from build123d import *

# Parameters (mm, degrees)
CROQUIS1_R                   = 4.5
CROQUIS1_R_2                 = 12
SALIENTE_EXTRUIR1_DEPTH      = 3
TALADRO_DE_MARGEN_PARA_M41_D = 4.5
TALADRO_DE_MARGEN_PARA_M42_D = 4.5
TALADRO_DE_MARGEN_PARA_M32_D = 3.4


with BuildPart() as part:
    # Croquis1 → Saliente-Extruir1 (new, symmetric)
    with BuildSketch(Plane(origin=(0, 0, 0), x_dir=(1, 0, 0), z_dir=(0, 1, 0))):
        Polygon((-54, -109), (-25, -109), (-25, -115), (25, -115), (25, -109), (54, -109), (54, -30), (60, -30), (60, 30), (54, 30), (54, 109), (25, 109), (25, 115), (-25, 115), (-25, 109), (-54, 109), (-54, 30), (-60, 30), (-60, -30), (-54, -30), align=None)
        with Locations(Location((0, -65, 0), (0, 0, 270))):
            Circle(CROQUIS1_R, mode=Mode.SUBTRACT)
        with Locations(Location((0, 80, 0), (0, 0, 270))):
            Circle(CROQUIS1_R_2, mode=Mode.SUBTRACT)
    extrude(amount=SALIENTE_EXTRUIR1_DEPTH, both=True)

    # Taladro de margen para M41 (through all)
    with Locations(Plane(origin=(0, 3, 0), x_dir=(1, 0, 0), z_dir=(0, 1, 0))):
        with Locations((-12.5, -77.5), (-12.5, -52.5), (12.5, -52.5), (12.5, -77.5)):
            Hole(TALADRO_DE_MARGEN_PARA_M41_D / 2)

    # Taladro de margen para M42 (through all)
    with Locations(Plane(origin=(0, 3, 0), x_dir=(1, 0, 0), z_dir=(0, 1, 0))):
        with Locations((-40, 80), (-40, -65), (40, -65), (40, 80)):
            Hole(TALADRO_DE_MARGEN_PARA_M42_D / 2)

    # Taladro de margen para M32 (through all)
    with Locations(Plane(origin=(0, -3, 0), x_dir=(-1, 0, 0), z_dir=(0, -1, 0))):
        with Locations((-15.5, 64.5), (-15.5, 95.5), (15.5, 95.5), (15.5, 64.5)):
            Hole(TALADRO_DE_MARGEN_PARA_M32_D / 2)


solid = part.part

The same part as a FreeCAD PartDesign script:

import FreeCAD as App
import Part
import Sketcher
from FreeCAD import Vector


def add_polygon(sketch, points):
    """Adds a closed chain of lines whose ends are joined by coincident constraints."""
    first, n = sketch.GeometryCount, len(points)
    for a, b in zip(points, points[1:] + points[:1]):
        sketch.addGeometry(Part.LineSegment(App.Vector(*a, 0), App.Vector(*b, 0)), False)
    for i in range(n):
        sketch.addConstraint(Sketcher.Constraint("Coincident", first + i, 2, first + (i + 1) % n, 1))

doc = App.newDocument("Part")
body = doc.addObject("PartDesign::Body", "Body")

# Sketch on XZ plane
sketch1 = body.newObject("Sketcher::SketchObject", "Sketch")
sketch1.AttachmentSupport = (doc.getObject("XZ_Plane"), [""])
sketch1.MapMode = "FlatFace"
add_polygon(sketch1, [(-54, 109), (-25, 109), (-25, 115), (25, 115), (25, 109), (54, 109), (54, 30), (60, 30), (60, -30), (54, -30), (54, -109), (25, -109), (25, -115), (-25, -115), (-25, -109), (-54, -109), (-54, -30), (-60, -30), (-60, 30), (-54, 30)])  # lines 0-19
sketch1.addGeometry(Part.Circle(Vector(0, 65, 0), Vector(0, 0, 1), 4.5), False)  # 20
sketch1.addGeometry(Part.Circle(Vector(0, -80, 0), Vector(0, 0, 1), 12), False)  # 21
sketch1.addConstraint([
    Sketcher.Constraint("Horizontal", 0),
    Sketcher.Constraint("Vertical", 1),
    Sketcher.Constraint("Horizontal", 2),
    Sketcher.Constraint("Vertical", 3),
    Sketcher.Constraint("Horizontal", 4),
    Sketcher.Constraint("Vertical", 5),
    Sketcher.Constraint("Horizontal", 6),
    Sketcher.Constraint("Vertical", 7),
    Sketcher.Constraint("Horizontal", 8),
    Sketcher.Constraint("Vertical", 9),
    Sketcher.Constraint("Horizontal", 10),
    Sketcher.Constraint("Vertical", 11),
    Sketcher.Constraint("Horizontal", 12),
    Sketcher.Constraint("Vertical", 13),
    Sketcher.Constraint("Horizontal", 14),
    Sketcher.Constraint("Vertical", 15),
    Sketcher.Constraint("Horizontal", 16),
    Sketcher.Constraint("Vertical", 17),
    Sketcher.Constraint("Horizontal", 18),
    Sketcher.Constraint("Vertical", 19),
    Sketcher.Constraint("Symmetric", 0, 2, 10, 2, -1, 1),
    Sketcher.Constraint("Symmetric", 2, 2, 12, 2, -1, 1),
    Sketcher.Constraint("Symmetric", 4, 2, 14, 2, -1, 1),
    Sketcher.Constraint("Symmetric", 6, 2, 16, 2, -1, 1),
    Sketcher.Constraint("Symmetric", 8, 2, 18, 2, -1, 1),
    Sketcher.Constraint("Symmetric", 0, 2, 3, 2, -2),
    Sketcher.Constraint("Symmetric", 8, 2, 15, 2, -2),
    Sketcher.Constraint("PointOnObject", 20, 3, -2),
    Sketcher.Constraint("PointOnObject", 21, 3, -2),
    Sketcher.Constraint("Equal", 18, 1),
    Sketcher.Constraint("Diameter", 20, 9.0),
    Sketcher.Constraint("Diameter", 21, 24.0),
    Sketcher.Constraint("DistanceX", 0, 1, 0, 2, 29.0),
    Sketcher.Constraint("DistanceX", 2, 1, 2, 2, 50.0),
    Sketcher.Constraint("DistanceX", 6, 1, 6, 2, 6.0),
    Sketcher.Constraint("DistanceY", 5, 2, 5, 1, 79.0),
    Sketcher.Constraint("DistanceY", 7, 2, 7, 1, 60.0),
    Sketcher.Constraint("DistanceY", -1, 1, 20, 3, 65.0),
    Sketcher.Constraint("DistanceY", 21, 3, -1, 1, 80.0),
])
pad1 = body.newObject("PartDesign::Pad", "Pad")
pad1.Profile = sketch1
pad1.Length = 6
pad1.Midplane = True

# Sketch on XZ plane
sketch2 = body.newObject("Sketcher::SketchObject", "Sketch001")
sketch2.AttachmentSupport = (doc.getObject("XZ_Plane"), [""])
sketch2.MapMode = "FlatFace"
sketch2.AttachmentOffset = App.Placement(Vector(0, 0, -3), App.Rotation())
sketch2.addGeometry([
    Part.Circle(Vector(-12.5, 77.5, 0), Vector(0, 0, 1), 2.25),
    Part.Circle(Vector(-12.5, 52.5, 0), Vector(0, 0, 1), 2.25),
    Part.Circle(Vector(12.5, 52.5, 0), Vector(0, 0, 1), 2.25),
    Part.Circle(Vector(12.5, 77.5, 0), Vector(0, 0, 1), 2.25),
], False)
sketch2.addConstraint([
    Sketcher.Constraint("Equal", 0, 1),
    Sketcher.Constraint("Equal", 1, 2),
    Sketcher.Constraint("Equal", 2, 3),
    Sketcher.Constraint("Symmetric", 1, 3, 2, 3, -2),
    Sketcher.Constraint("Symmetric", 0, 3, 3, 3, -2),
    Sketcher.Constraint("Vertical", 0, 3, 1, 3),
    Sketcher.Constraint("Diameter", 0, 4.5),
    Sketcher.Constraint("DistanceY", 1, 3, 0, 3, 25.0),
    Sketcher.Constraint("DistanceX", 1, 3, 2, 3, 25.0),
    Sketcher.Constraint("DistanceY", -1, 1, 0, 3, 77.5),
])
doc.recompute()
hole = body.newObject("PartDesign::Hole", "Hole")
hole.Profile = sketch2
hole.ThreadType = "None"
hole.Diameter = 4.5
hole.DepthType = "ThroughAll"
hole.Reversed = True

# Sketch on XZ plane
sketch3 = body.newObject("Sketcher::SketchObject", "Sketch002")
sketch3.AttachmentSupport = (doc.getObject("XZ_Plane"), [""])
sketch3.MapMode = "FlatFace"
sketch3.AttachmentOffset = App.Placement(Vector(0, 0, -3), App.Rotation())
sketch3.addGeometry([
    Part.Circle(Vector(-40, -80, 0), Vector(0, 0, 1), 2.25),
    Part.Circle(Vector(-40, 65, 0), Vector(0, 0, 1), 2.25),
    Part.Circle(Vector(40, 65, 0), Vector(0, 0, 1), 2.25),
    Part.Circle(Vector(40, -80, 0), Vector(0, 0, 1), 2.25),
], False)
sketch3.addConstraint([
    Sketcher.Constraint("Equal", 0, 1),
    Sketcher.Constraint("Equal", 1, 2),
    Sketcher.Constraint("Equal", 2, 3),
    Sketcher.Constraint("Symmetric", 1, 3, 2, 3, -2),
    Sketcher.Constraint("Symmetric", 0, 3, 3, 3, -2),
    Sketcher.Constraint("Vertical", 0, 3, 1, 3),
    Sketcher.Constraint("Diameter", 0, 4.5),
    Sketcher.Constraint("DistanceX", 0, 3, -1, 1, 40.0),
    Sketcher.Constraint("DistanceY", 0, 3, -1, 1, 80.0),
    Sketcher.Constraint("DistanceY", -1, 1, 1, 3, 65.0),
])
doc.recompute()
hole2 = body.newObject("PartDesign::Hole", "Hole001")
hole2.Profile = sketch3
hole2.ThreadType = "None"
hole2.Diameter = 4.5
hole2.DepthType = "ThroughAll"
hole2.Reversed = True

# Sketch on XZ plane
sketch4 = body.newObject("Sketcher::SketchObject", "Sketch003")
sketch4.AttachmentSupport = (doc.getObject("XZ_Plane"), [""])
sketch4.MapMode = "FlatFace"
sketch4.AttachmentOffset = App.Placement(Vector(0, 0, 3), App.Rotation())
sketch4.addGeometry([
    Part.Circle(Vector(15.5, -64.5, 0), Vector(0, 0, 1), 1.7),
    Part.Circle(Vector(15.5, -95.5, 0), Vector(0, 0, 1), 1.7),
    Part.Circle(Vector(-15.5, -95.5, 0), Vector(0, 0, 1), 1.7),
    Part.Circle(Vector(-15.5, -64.5, 0), Vector(0, 0, 1), 1.7),
], False)
sketch4.addConstraint([
    Sketcher.Constraint("Equal", 0, 1),
    Sketcher.Constraint("Equal", 1, 2),
    Sketcher.Constraint("Equal", 2, 3),
    Sketcher.Constraint("Symmetric", 1, 3, 2, 3, -2),
    Sketcher.Constraint("Symmetric", 0, 3, 3, 3, -2),
    Sketcher.Constraint("Vertical", 0, 3, 1, 3),
    Sketcher.Constraint("Diameter", 0, 3.4),
    Sketcher.Constraint("DistanceY", 1, 3, 0, 3, 31.0),
    Sketcher.Constraint("DistanceX", 2, 3, 1, 3, 31.0),
    Sketcher.Constraint("DistanceY", 0, 3, -1, 1, 64.5),
])
doc.recompute()
hole3 = body.newObject("PartDesign::Hole", "Hole002")
hole3.Profile = sketch4
hole3.ThreadType = "None"
hole3.Diameter = 3.4
hole3.DepthType = "ThroughAll"

doc.recompute()
